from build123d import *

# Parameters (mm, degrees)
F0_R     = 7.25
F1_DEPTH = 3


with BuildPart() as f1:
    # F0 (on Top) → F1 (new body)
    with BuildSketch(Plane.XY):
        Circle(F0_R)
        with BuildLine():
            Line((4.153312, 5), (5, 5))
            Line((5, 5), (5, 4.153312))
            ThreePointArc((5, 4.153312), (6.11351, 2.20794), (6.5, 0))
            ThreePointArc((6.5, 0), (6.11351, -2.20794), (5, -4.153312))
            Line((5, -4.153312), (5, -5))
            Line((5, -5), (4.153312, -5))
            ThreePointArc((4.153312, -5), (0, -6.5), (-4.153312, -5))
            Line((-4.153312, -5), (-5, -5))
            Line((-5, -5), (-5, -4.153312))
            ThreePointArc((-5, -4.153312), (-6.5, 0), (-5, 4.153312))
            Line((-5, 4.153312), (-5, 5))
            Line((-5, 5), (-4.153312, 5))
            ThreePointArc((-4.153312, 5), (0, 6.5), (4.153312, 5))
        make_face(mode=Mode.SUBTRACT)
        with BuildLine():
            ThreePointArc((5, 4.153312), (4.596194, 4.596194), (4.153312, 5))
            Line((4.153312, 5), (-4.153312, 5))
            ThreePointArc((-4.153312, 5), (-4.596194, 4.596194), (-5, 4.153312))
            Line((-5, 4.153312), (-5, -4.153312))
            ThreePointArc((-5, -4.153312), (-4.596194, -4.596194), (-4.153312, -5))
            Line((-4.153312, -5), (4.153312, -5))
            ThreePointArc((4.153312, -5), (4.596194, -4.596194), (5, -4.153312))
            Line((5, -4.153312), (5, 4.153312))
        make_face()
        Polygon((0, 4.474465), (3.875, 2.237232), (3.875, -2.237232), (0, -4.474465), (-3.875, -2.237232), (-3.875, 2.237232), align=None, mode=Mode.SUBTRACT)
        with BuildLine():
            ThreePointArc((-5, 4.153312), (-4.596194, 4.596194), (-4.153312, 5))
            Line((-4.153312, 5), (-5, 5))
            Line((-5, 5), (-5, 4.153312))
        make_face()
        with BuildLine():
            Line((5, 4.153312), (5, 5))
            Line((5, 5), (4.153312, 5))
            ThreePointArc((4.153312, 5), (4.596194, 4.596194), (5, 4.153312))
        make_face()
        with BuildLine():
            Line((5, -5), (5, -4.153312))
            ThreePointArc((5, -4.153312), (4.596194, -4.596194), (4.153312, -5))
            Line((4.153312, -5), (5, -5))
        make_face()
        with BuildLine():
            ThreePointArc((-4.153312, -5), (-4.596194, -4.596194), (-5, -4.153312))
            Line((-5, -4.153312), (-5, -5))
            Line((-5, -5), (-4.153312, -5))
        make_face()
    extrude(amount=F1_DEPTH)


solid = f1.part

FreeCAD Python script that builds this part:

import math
import FreeCAD as App
import Part
import Sketcher
Q = App.Units.Quantity

doc = App.newDocument("Part")
body = doc.addObject("PartDesign::Body", "Body")

# Sketch on XY plane
sketch1 = body.newObject("Sketcher::SketchObject", "Sketch")
sketch1.AttachmentSupport = (doc.getObject("XY_Plane"), [""])
sketch1.MapMode = "FlatFace"
sketch1.addGeometry(Part.Circle(App.Vector(0, 0, 0), App.Vector(0, 0, 1), 7.25), False)
sketch1.addGeometry(Part.ArcOfCircle(Part.Circle(App.Vector(0, 0, 0), App.Vector(0, 0, 1), 6.5), math.radians(-129.715137), math.radians(-50.284863)), False)
sketch1.addGeometry(Part.LineSegment(App.Vector(-4.153312, -5, 0), App.Vector(4.153312, -5, 0)), False)
sketch1.addGeometry(Part.LineSegment(App.Vector(-5, 4.153312, 0), App.Vector(-5, -4.153312, 0)), False)
sketch1.addGeometry(Part.ArcOfCircle(Part.Circle(App.Vector(0, 0, 0), App.Vector(0, 0, 1), 6.5), math.radians(140.284863), math.radians(219.715137)), False)
sketch1.addGeometry(Part.LineSegment(App.Vector(0, 4.474465, 0), App.Vector(3.875, 2.237232, 0)), False)
sketch1.addGeometry(Part.LineSegment(App.Vector(3.875, 2.237232, 0), App.Vector(3.875, -2.237232, 0)), False)
sketch1.addGeometry(Part.LineSegment(App.Vector(3.875, -2.237232, 0), App.Vector(0, -4.474465, 0)), False)
sketch1.addGeometry(Part.LineSegment(App.Vector(0, -4.474465, 0), App.Vector(-3.875, -2.237232, 0)), False)
sketch1.addGeometry(Part.LineSegment(App.Vector(-3.875, -2.237232, 0), App.Vector(-3.875, 2.237232, 0)), False)
sketch1.addGeometry(Part.LineSegment(App.Vector(-3.875, 2.237232, 0), App.Vector(0, 4.474465, 0)), False)
sketch1.addGeometry(Part.ArcOfCircle(Part.Circle(App.Vector(0, 0, 0), App.Vector(0, 0, 1), 6.5), math.radians(50.284863), math.radians(129.715137)), False)
sketch1.addGeometry(Part.LineSegment(App.Vector(4.153312, 5, 0), App.Vector(-4.153312, 5, 0)), False)
sketch1.addGeometry(Part.ArcOfCircle(Part.Circle(App.Vector(0.000004, -0.000002, 0), App.Vector(0, 0, 1), 6.499996), math.radians(-39.71515), math.radians(0.000013)), False)
sketch1.addGeometry(Part.LineSegment(App.Vector(5, -4.153312, 0), App.Vector(5, 4.153312, 0)), False)
sketch1.addGeometry(Part.ArcOfCircle(Part.Circle(App.Vector(0.000004, 0.000002, 0), App.Vector(0, 0, 1), 6.499996), math.radians(-0.000013), math.radians(39.71515)), False)
sketch1.addConstraint(Sketcher.Constraint("Coincident", 1, 1, 2, 1))
sketch1.addConstraint(Sketcher.Constraint("Coincident", 2, 2, 1, 2))
sketch1.addConstraint(Sketcher.Constraint("Coincident", 3, 1, 4, 1))
sketch1.addConstraint(Sketcher.Constraint("Coincident", 4, 2, 3, 2))
sketch1.addConstraint(Sketcher.Constraint("Coincident", 5, 2, 6, 1))
sketch1.addConstraint(Sketcher.Constraint("Coincident", 6, 2, 7, 1))
sketch1.addConstraint(Sketcher.Constraint("Coincident", 7, 2, 8, 1))
sketch1.addConstraint(Sketcher.Constraint("Coincident", 8, 2, 9, 1))
sketch1.addConstraint(Sketcher.Constraint("Coincident", 9, 2, 10, 1))
sketch1.addConstraint(Sketcher.Constraint("Coincident", 10, 2, 5, 1))
sketch1.addConstraint(Sketcher.Constraint("Coincident", 11, 1, 12, 1))
sketch1.addConstraint(Sketcher.Constraint("Coincident", 12, 2, 11, 2))
sketch1.addConstraint(Sketcher.Constraint("Coincident", 13, 1, 14, 1))
sketch1.addConstraint(Sketcher.Constraint("Coincident", 14, 2, 15, 2))
sketch1.addConstraint(Sketcher.Constraint("Tangent", 15, 1, 13, 2))
sketch1.addConstraint(Sketcher.Constraint("Horizontal", 2))
sketch1.addConstraint(Sketcher.Constraint("Vertical", 3))
sketch1.addConstraint(Sketcher.Constraint("Vertical", 6))
sketch1.addConstraint(Sketcher.Constraint("Vertical", 9))
sketch1.addConstraint(Sketcher.Constraint("Horizontal", 12))
sketch1.addConstraint(Sketcher.Constraint("Vertical", 14))
sketch1.addConstraint(Sketcher.Constraint("Coincident", 0, 3, -1, 1))
sketch1.addConstraint(Sketcher.Constraint("Coincident", 1, 3, -1, 1))
sketch1.addConstraint(Sketcher.Constraint("Coincident", 4, 3, -1, 1))
sketch1.addConstraint(Sketcher.Constraint("Coincident", 11, 3, -1, 1))
sketch1.addConstraint(Sketcher.Constraint("Coincident", 13, 3, -1, 1))
sketch1.addConstraint(Sketcher.Constraint("Equal", 1, 4))
sketch1.addConstraint(Sketcher.Constraint("Equal", 4, 11))
sketch1.addConstraint(Sketcher.Constraint("Equal", 13, 15))
sketch1.addConstraint(Sketcher.Constraint("Symmetric", 5, 2, 8, 2, -1, 1))
sketch1.addConstraint(Sketcher.Constraint("Symmetric", 7, 2, 10, 2, -1, 1))
sketch1.addConstraint(Sketcher.Constraint("Symmetric", 3, 1, 13, 1, -1, 1))
sketch1.addConstraint(Sketcher.Constraint("PointOnObject", 7, 2, -2))
sketch1.addConstraint(Sketcher.Constraint("PointOnObject", 15, 1, -1))
sketch1.addConstraint(Sketcher.Constraint("Parallel", 7, 10))
sketch1.addConstraint(Sketcher.Constraint("Horizontal", 6, 2, 8, 2))
sketch1.addConstraint(Sketcher.Constraint("Vertical", 2, 2, 11, 1))
sketch1.addConstraint(Sketcher.Constraint("Equal", 12, 3))
sketch1.addConstraint(Sketcher.Constraint("Diameter", 0, 14.5))
sketch1.addConstraint(Sketcher.Constraint("Radius", 1, 6.5))
sketch1.addConstraint(Sketcher.Constraint("Angle", 5, Q("-30.000008 deg")))
sketch1.addConstraint(Sketcher.Constraint("DistanceY", 1, 1, -1, 1, 5.0))
sketch1.addConstraint(Sketcher.Constraint("DistanceX", -1, 1, 5, 2, 3.875))
sketch1.addConstraint(Sketcher.Constraint("DistanceY", 6, 2, 6, 1, 4.474464))
pad1 = body.newObject("PartDesign::Pad", "Pad")
pad1.Profile = sketch1
pad1.Length = 3

doc.recompute()
